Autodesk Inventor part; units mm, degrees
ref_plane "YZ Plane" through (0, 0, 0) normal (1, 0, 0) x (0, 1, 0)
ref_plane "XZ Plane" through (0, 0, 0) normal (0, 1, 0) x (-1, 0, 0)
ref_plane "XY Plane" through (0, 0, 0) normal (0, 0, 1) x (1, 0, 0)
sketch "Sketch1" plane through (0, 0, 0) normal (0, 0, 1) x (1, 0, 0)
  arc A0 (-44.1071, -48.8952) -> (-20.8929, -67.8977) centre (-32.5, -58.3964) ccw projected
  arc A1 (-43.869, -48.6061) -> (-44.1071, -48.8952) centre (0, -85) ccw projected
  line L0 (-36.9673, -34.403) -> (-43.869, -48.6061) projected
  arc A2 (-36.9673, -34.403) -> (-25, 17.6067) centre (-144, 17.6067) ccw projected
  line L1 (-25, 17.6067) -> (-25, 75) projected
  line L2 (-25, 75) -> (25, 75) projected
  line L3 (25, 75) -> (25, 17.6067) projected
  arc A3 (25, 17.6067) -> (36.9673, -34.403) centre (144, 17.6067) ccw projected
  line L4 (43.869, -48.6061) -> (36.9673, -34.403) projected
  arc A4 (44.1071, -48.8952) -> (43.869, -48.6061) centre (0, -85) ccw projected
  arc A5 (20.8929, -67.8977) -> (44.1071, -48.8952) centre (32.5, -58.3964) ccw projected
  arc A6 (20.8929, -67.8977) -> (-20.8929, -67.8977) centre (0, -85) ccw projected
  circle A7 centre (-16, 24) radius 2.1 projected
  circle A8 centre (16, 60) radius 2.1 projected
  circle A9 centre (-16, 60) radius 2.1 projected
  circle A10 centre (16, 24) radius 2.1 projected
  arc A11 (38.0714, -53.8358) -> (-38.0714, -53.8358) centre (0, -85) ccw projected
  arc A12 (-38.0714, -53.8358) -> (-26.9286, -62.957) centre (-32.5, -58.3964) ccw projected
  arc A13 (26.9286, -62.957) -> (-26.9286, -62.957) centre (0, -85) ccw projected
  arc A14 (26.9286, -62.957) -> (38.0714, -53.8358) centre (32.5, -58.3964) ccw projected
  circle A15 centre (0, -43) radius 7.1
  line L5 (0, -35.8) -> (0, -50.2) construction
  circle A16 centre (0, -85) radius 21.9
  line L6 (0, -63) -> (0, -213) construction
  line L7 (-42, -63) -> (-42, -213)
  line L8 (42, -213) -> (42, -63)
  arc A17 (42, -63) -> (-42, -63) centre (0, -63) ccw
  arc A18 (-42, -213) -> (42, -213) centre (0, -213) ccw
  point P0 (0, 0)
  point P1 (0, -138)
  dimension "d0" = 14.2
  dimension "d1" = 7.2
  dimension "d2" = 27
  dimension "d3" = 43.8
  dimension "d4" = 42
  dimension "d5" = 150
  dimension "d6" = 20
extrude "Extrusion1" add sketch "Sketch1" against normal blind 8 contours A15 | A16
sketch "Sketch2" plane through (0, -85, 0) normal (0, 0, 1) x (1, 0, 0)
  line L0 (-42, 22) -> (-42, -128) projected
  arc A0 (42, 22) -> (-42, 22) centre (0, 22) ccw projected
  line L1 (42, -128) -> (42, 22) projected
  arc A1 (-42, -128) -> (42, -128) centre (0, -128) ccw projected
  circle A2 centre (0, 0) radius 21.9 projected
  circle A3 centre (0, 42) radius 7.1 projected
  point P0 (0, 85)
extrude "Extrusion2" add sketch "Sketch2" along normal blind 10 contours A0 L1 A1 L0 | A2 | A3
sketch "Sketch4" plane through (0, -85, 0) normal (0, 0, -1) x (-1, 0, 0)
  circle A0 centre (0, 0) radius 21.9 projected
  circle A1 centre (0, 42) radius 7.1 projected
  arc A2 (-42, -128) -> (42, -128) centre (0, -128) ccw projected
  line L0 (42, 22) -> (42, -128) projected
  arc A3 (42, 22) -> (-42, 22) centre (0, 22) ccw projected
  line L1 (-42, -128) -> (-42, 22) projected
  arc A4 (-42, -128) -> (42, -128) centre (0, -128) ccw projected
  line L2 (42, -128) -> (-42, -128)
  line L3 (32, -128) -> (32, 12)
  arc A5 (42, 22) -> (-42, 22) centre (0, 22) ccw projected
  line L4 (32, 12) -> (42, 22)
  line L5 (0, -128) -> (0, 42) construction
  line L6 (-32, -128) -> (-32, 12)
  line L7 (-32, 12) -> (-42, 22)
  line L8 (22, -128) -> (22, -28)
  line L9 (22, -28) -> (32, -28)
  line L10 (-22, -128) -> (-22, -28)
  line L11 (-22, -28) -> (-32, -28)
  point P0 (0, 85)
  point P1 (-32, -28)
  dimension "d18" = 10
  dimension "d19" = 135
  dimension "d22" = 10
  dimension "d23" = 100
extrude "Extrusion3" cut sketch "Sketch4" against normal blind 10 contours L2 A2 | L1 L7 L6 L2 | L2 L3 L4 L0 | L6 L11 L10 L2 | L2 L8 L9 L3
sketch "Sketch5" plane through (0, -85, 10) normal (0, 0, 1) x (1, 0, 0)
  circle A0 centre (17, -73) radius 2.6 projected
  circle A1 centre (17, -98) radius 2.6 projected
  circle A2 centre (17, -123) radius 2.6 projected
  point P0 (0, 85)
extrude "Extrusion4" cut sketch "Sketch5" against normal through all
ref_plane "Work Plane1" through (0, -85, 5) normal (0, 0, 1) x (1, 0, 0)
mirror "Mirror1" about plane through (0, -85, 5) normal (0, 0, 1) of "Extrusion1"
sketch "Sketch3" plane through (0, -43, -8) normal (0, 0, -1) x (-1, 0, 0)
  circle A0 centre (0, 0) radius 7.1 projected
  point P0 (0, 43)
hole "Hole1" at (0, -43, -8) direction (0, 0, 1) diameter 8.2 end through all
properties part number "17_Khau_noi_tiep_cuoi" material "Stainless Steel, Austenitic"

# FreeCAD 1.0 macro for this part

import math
import FreeCAD as App
import Part
import Sketcher
from FreeCAD import Vector
Q = App.Units.Quantity

doc = App.newDocument("Part")
body = doc.addObject("PartDesign::Body", "Body")
body.AllowCompound = True

sketch1 = body.newObject("Sketcher::SketchObject", "Sketch")
sketch1.AttachmentSupport = (doc.getObject("XY_Plane"), [""])
sketch1.MapMode = "FlatFace"
sketch1.addGeometry([
    Part.Circle(Vector(0, -43, 0), Vector(0, 0, 1), 7.1),
    Part.Circle(Vector(0, -85, 0), Vector(0, 0, 1), 21.9),
], False)
sketch1.addConstraint([
    Sketcher.Constraint("PointOnObject", 0, 3, -2),
    Sketcher.Constraint("PointOnObject", 1, 3, -2),
    Sketcher.Constraint("Diameter", 0, Q("14.2 mm")),
    Sketcher.Constraint("Diameter", 1, Q("43.8 mm")),
    Sketcher.Constraint("DistanceY", 1, 3, 0, 3, Q("42 mm")),
    Sketcher.Constraint("DistanceY", 0, 3, -1, 1, Q("43 mm")),
])
pad1 = body.newObject("PartDesign::Pad", "Pad")
pad1.Profile = sketch1
pad1.Length = 8
pad1.Reversed = True

sketch2 = body.newObject("Sketcher::SketchObject", "Sketch001")
sketch2.AttachmentSupport = (doc.getObject("XY_Plane"), [""])
sketch2.MapMode = "FlatFace"
sketch2.addGeometry([
    Part.ArcOfCircle(Part.Circle(Vector(0, -63, 0), Vector(0, 0, 1), 42), math.radians(0), math.radians(180)),
    Part.LineSegment(Vector(-42, -63, 0), Vector(-42, -213, 0)),
    Part.ArcOfCircle(Part.Circle(Vector(0, -213, 0), Vector(0, 0, 1), 42), math.radians(180), math.radians(360)),
    Part.LineSegment(Vector(42, -213, 0), Vector(42, -63, 0)),
], False)
sketch2.addConstraint([
    Sketcher.Constraint("Tangent", 0, 2, 1, 1),
    Sketcher.Constraint("Tangent", 1, 2, 2, 1),
    Sketcher.Constraint("Tangent", 2, 2, 3, 1),
    Sketcher.Constraint("Tangent", 3, 2, 0, 1),
    Sketcher.Constraint("Vertical", 1),
    Sketcher.Constraint("Vertical", 3),
    Sketcher.Constraint("PointOnObject", 0, 3, -2),
    Sketcher.Constraint("Radius", 0, Q("42 mm")),
    Sketcher.Constraint("DistanceY", 1, 2, 1, 1, Q("150 mm")),
    Sketcher.Constraint("DistanceY", 0, 3, -1, 1, Q("63 mm")),
])
pad2 = body.newObject("PartDesign::Pad", "Pad001")
pad2.Profile = sketch2
pad2.Length = 10

sketch3 = body.newObject("Sketcher::SketchObject", "Sketch002")
sketch3.AttachmentSupport = (doc.getObject("XY_Plane"), [""])
sketch3.MapMode = "FlatFace"
sketch3.addGeometry([
    Part.LineSegment(Vector(-22, -213, 0), Vector(22, -213, 0)),
    Part.LineSegment(Vector(22, -213, 0), Vector(22, -113, 0)),
    Part.LineSegment(Vector(22, -113, 0), Vector(32, -113, 0)),
    Part.LineSegment(Vector(32, -113, 0), Vector(32, -73, 0)),
    Part.LineSegment(Vector(32, -73, 0), Vector(42, -63, 0)),
    Part.LineSegment(Vector(42, -63, 0), Vector(42, -213, 0)),
    Part.ArcOfCircle(Part.Circle(Vector(0, -213, 0), Vector(0, 0, 1), 42), math.radians(180), math.radians(360)),
    Part.LineSegment(Vector(-42, -213, 0), Vector(-42, -63, 0)),
    Part.LineSegment(Vector(-42, -63, 0), Vector(-32, -73, 0)),
    Part.LineSegment(Vector(-32, -73, 0), Vector(-32, -113, 0)),
    Part.LineSegment(Vector(-32, -113, 0), Vector(-22, -113, 0)),
    Part.LineSegment(Vector(-22, -113, 0), Vector(-22, -213, 0)),
], False)
sketch3.addConstraint([
    Sketcher.Constraint("Coincident", 0, 2, 1, 1),
    Sketcher.Constraint("Coincident", 1, 2, 2, 1),
    Sketcher.Constraint("Coincident", 2, 2, 3, 1),
    Sketcher.Constraint("Coincident", 3, 2, 4, 1),
    Sketcher.Constraint("Coincident", 4, 2, 5, 1),
    Sketcher.Constraint("Tangent", 5, 2, 6, 2),
    Sketcher.Constraint("Tangent", 6, 1, 7, 1),
    Sketcher.Constraint("Coincident", 7, 2, 8, 1),
    Sketcher.Constraint("Coincident", 8, 2, 9, 1),
    Sketcher.Constraint("Coincident", 9, 2, 10, 1),
    Sketcher.Constraint("Coincident", 10, 2, 11, 1),
    Sketcher.Constraint("Coincident", 11, 2, 0, 1),
    Sketcher.Constraint("Horizontal", 0),
    Sketcher.Constraint("Vertical", 1),
    Sketcher.Constraint("Horizontal", 2),
    Sketcher.Constraint("Vertical", 3),
    Sketcher.Constraint("Vertical", 5),
    Sketcher.Constraint("Vertical", 7),
    Sketcher.Constraint("Vertical", 9),
    Sketcher.Constraint("Horizontal", 10),
    Sketcher.Constraint("Vertical", 11),
    Sketcher.Constraint("Symmetric", 4, 2, 7, 2, -2),
    Sketcher.Constraint("Symmetric", 3, 2, 8, 2, -2),
    Sketcher.Constraint("Symmetric", 1, 2, 10, 2, -2),
    Sketcher.Constraint("Perpendicular", 4, 8),
    Sketcher.Constraint("Horizontal", 6, 3, 0, 2),
    Sketcher.Constraint("DistanceX", 2, 1, 2, 2, Q("10 mm")),
    Sketcher.Constraint("DistanceY", 1, 1, 1, 2, Q("100 mm")),
    Sketcher.Constraint("Radius", 6, Q("42 mm")),
    Sketcher.Constraint("DistanceX", 3, 2, 4, 2, Q("10 mm")),
    Sketcher.Constraint("DistanceY", 3, 1, 3, 2, Q("40 mm")),
    Sketcher.Constraint("DistanceY", 6, 3, -1, 1, Q("213 mm")),
])
pocket1 = body.newObject("PartDesign::Pocket", "Pocket")
pocket1.Profile = sketch3
pocket1.Length = 10
pocket1.Reversed = True

sketch4 = body.newObject("Sketcher::SketchObject", "Sketch003")
sketch4.AttachmentSupport = (doc.getObject("XY_Plane"), [""])
sketch4.MapMode = "FlatFace"
sketch4.AttachmentOffset = App.Placement(Vector(0, 0, 10), App.Rotation())
sketch4.addGeometry([
    Part.Circle(Vector(17, -158, 0), Vector(0, 0, 1), 2.6),
    Part.Circle(Vector(17, -183, 0), Vector(0, 0, 1), 2.6),
    Part.Circle(Vector(17, -208, 0), Vector(0, 0, 1), 2.6),
], False)
sketch4.addConstraint([
    Sketcher.Constraint("Equal", 0, 1),
    Sketcher.Constraint("Equal", 1, 2),
    Sketcher.Constraint("Vertical", 0, 3, 1, 3),
    Sketcher.Constraint("Vertical", 1, 3, 2, 3),
    Sketcher.Constraint("Diameter", 0, Q("5.2 mm")),
    Sketcher.Constraint("DistanceX", -1, 1, 0, 3, Q("17 mm")),
    Sketcher.Constraint("DistanceY", 0, 3, -1, 1, Q("158 mm")),
    Sketcher.Constraint("DistanceY", 1, 3, -1, 1, Q("183 mm")),
    Sketcher.Constraint("DistanceY", 2, 3, -1, 1, Q("208 mm")),
])
pocket2 = body.newObject("PartDesign::Pocket", "Pocket001")
pocket2.Profile = sketch4
pocket2.Type = "ThroughAll"
doc.recompute()

datumplane = body.newObject("PartDesign::Plane", "DatumPlane")
datumplane.AttachmentSupport = (doc.getObject("XY_Plane"), [""])
datumplane.MapMode = "FlatFace"
datumplane.AttachmentOffset = App.Placement(Vector(0, 0, 5), App.Rotation())
mirrored = body.newObject("PartDesign::Mirrored", "Mirrored")
mirrored.Originals = [pad1]
mirrored.MirrorPlane = (datumplane, [""])
body.Tip = mirrored

sketch5 = body.newObject("Sketcher::SketchObject", "Sketch004")
sketch5.AttachmentSupport = (doc.getObject("XY_Plane"), [""])
sketch5.MapMode = "FlatFace"
sketch5.AttachmentOffset = App.Placement(Vector(0, 0, -8), App.Rotation())
sketch5.addGeometry(Part.Circle(Vector(0, -43, 0), Vector(0, 0, 1), 4.1), False)
sketch5.addConstraint([
    Sketcher.Constraint("PointOnObject", 0, 3, -2),
    Sketcher.Constraint("Diameter", 0, Q("8.2 mm")),
    Sketcher.Constraint("DistanceY", 0, 3, -1, 1, Q("43 mm")),
])
doc.recompute()
hole = body.newObject("PartDesign::Hole", "Hole")
hole.Profile = sketch5
hole.ThreadType = "None"
hole.Diameter = 8.2
hole.DepthType = "ThroughAll"
hole.Reversed = True

doc.recompute()
